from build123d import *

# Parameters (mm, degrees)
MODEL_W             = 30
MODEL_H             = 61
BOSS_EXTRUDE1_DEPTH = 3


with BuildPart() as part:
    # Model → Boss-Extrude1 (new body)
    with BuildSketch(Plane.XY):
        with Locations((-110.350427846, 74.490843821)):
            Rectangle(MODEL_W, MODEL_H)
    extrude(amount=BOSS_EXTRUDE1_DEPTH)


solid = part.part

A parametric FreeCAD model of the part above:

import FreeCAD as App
import Part
import Sketcher


def add_polygon(sketch, points):
    """Adds a closed chain of lines whose ends are joined by coincident constraints."""
    first, n = sketch.GeometryCount, len(points)
    for a, b in zip(points, points[1:] + points[:1]):
        sketch.addGeometry(Part.LineSegment(App.Vector(*a, 0), App.Vector(*b, 0)), False)
    for i in range(n):
        sketch.addConstraint(Sketcher.Constraint("Coincident", first + i, 2, first + (i + 1) % n, 1))

doc = App.newDocument("Part")
body = doc.addObject("PartDesign::Body", "Body")

# Sketch on XY plane
sketch1 = body.newObject("Sketcher::SketchObject", "Sketch")
sketch1.AttachmentSupport = (doc.getObject("XY_Plane"), [""])
sketch1.MapMode = "FlatFace"
add_polygon(sketch1, [(-125, 105), (-125, 44), (-95, 44), (-95, 105)])  # lines 0-3
sketch1.addConstraint(Sketcher.Constraint("Vertical", 0))
sketch1.addConstraint(Sketcher.Constraint("Horizontal", 1))
sketch1.addConstraint(Sketcher.Constraint("Vertical", 2))
sketch1.addConstraint(Sketcher.Constraint("Horizontal", 3))
sketch1.addConstraint(Sketcher.Constraint("DistanceX", 1, 1, 1, 2, 30.0))
sketch1.addConstraint(Sketcher.Constraint("DistanceY", 0, 2, 0, 1, 61.0))
sketch1.addConstraint(Sketcher.Constraint("DistanceX", 0, 2, -1, 1, 125.350428))
sketch1.addConstraint(Sketcher.Constraint("DistanceY", -1, 1, 0, 2, 43.990844))
pad1 = body.newObject("PartDesign::Pad", "Pad")
pad1.Profile = sketch1
pad1.Length = 3

doc.recompute()
